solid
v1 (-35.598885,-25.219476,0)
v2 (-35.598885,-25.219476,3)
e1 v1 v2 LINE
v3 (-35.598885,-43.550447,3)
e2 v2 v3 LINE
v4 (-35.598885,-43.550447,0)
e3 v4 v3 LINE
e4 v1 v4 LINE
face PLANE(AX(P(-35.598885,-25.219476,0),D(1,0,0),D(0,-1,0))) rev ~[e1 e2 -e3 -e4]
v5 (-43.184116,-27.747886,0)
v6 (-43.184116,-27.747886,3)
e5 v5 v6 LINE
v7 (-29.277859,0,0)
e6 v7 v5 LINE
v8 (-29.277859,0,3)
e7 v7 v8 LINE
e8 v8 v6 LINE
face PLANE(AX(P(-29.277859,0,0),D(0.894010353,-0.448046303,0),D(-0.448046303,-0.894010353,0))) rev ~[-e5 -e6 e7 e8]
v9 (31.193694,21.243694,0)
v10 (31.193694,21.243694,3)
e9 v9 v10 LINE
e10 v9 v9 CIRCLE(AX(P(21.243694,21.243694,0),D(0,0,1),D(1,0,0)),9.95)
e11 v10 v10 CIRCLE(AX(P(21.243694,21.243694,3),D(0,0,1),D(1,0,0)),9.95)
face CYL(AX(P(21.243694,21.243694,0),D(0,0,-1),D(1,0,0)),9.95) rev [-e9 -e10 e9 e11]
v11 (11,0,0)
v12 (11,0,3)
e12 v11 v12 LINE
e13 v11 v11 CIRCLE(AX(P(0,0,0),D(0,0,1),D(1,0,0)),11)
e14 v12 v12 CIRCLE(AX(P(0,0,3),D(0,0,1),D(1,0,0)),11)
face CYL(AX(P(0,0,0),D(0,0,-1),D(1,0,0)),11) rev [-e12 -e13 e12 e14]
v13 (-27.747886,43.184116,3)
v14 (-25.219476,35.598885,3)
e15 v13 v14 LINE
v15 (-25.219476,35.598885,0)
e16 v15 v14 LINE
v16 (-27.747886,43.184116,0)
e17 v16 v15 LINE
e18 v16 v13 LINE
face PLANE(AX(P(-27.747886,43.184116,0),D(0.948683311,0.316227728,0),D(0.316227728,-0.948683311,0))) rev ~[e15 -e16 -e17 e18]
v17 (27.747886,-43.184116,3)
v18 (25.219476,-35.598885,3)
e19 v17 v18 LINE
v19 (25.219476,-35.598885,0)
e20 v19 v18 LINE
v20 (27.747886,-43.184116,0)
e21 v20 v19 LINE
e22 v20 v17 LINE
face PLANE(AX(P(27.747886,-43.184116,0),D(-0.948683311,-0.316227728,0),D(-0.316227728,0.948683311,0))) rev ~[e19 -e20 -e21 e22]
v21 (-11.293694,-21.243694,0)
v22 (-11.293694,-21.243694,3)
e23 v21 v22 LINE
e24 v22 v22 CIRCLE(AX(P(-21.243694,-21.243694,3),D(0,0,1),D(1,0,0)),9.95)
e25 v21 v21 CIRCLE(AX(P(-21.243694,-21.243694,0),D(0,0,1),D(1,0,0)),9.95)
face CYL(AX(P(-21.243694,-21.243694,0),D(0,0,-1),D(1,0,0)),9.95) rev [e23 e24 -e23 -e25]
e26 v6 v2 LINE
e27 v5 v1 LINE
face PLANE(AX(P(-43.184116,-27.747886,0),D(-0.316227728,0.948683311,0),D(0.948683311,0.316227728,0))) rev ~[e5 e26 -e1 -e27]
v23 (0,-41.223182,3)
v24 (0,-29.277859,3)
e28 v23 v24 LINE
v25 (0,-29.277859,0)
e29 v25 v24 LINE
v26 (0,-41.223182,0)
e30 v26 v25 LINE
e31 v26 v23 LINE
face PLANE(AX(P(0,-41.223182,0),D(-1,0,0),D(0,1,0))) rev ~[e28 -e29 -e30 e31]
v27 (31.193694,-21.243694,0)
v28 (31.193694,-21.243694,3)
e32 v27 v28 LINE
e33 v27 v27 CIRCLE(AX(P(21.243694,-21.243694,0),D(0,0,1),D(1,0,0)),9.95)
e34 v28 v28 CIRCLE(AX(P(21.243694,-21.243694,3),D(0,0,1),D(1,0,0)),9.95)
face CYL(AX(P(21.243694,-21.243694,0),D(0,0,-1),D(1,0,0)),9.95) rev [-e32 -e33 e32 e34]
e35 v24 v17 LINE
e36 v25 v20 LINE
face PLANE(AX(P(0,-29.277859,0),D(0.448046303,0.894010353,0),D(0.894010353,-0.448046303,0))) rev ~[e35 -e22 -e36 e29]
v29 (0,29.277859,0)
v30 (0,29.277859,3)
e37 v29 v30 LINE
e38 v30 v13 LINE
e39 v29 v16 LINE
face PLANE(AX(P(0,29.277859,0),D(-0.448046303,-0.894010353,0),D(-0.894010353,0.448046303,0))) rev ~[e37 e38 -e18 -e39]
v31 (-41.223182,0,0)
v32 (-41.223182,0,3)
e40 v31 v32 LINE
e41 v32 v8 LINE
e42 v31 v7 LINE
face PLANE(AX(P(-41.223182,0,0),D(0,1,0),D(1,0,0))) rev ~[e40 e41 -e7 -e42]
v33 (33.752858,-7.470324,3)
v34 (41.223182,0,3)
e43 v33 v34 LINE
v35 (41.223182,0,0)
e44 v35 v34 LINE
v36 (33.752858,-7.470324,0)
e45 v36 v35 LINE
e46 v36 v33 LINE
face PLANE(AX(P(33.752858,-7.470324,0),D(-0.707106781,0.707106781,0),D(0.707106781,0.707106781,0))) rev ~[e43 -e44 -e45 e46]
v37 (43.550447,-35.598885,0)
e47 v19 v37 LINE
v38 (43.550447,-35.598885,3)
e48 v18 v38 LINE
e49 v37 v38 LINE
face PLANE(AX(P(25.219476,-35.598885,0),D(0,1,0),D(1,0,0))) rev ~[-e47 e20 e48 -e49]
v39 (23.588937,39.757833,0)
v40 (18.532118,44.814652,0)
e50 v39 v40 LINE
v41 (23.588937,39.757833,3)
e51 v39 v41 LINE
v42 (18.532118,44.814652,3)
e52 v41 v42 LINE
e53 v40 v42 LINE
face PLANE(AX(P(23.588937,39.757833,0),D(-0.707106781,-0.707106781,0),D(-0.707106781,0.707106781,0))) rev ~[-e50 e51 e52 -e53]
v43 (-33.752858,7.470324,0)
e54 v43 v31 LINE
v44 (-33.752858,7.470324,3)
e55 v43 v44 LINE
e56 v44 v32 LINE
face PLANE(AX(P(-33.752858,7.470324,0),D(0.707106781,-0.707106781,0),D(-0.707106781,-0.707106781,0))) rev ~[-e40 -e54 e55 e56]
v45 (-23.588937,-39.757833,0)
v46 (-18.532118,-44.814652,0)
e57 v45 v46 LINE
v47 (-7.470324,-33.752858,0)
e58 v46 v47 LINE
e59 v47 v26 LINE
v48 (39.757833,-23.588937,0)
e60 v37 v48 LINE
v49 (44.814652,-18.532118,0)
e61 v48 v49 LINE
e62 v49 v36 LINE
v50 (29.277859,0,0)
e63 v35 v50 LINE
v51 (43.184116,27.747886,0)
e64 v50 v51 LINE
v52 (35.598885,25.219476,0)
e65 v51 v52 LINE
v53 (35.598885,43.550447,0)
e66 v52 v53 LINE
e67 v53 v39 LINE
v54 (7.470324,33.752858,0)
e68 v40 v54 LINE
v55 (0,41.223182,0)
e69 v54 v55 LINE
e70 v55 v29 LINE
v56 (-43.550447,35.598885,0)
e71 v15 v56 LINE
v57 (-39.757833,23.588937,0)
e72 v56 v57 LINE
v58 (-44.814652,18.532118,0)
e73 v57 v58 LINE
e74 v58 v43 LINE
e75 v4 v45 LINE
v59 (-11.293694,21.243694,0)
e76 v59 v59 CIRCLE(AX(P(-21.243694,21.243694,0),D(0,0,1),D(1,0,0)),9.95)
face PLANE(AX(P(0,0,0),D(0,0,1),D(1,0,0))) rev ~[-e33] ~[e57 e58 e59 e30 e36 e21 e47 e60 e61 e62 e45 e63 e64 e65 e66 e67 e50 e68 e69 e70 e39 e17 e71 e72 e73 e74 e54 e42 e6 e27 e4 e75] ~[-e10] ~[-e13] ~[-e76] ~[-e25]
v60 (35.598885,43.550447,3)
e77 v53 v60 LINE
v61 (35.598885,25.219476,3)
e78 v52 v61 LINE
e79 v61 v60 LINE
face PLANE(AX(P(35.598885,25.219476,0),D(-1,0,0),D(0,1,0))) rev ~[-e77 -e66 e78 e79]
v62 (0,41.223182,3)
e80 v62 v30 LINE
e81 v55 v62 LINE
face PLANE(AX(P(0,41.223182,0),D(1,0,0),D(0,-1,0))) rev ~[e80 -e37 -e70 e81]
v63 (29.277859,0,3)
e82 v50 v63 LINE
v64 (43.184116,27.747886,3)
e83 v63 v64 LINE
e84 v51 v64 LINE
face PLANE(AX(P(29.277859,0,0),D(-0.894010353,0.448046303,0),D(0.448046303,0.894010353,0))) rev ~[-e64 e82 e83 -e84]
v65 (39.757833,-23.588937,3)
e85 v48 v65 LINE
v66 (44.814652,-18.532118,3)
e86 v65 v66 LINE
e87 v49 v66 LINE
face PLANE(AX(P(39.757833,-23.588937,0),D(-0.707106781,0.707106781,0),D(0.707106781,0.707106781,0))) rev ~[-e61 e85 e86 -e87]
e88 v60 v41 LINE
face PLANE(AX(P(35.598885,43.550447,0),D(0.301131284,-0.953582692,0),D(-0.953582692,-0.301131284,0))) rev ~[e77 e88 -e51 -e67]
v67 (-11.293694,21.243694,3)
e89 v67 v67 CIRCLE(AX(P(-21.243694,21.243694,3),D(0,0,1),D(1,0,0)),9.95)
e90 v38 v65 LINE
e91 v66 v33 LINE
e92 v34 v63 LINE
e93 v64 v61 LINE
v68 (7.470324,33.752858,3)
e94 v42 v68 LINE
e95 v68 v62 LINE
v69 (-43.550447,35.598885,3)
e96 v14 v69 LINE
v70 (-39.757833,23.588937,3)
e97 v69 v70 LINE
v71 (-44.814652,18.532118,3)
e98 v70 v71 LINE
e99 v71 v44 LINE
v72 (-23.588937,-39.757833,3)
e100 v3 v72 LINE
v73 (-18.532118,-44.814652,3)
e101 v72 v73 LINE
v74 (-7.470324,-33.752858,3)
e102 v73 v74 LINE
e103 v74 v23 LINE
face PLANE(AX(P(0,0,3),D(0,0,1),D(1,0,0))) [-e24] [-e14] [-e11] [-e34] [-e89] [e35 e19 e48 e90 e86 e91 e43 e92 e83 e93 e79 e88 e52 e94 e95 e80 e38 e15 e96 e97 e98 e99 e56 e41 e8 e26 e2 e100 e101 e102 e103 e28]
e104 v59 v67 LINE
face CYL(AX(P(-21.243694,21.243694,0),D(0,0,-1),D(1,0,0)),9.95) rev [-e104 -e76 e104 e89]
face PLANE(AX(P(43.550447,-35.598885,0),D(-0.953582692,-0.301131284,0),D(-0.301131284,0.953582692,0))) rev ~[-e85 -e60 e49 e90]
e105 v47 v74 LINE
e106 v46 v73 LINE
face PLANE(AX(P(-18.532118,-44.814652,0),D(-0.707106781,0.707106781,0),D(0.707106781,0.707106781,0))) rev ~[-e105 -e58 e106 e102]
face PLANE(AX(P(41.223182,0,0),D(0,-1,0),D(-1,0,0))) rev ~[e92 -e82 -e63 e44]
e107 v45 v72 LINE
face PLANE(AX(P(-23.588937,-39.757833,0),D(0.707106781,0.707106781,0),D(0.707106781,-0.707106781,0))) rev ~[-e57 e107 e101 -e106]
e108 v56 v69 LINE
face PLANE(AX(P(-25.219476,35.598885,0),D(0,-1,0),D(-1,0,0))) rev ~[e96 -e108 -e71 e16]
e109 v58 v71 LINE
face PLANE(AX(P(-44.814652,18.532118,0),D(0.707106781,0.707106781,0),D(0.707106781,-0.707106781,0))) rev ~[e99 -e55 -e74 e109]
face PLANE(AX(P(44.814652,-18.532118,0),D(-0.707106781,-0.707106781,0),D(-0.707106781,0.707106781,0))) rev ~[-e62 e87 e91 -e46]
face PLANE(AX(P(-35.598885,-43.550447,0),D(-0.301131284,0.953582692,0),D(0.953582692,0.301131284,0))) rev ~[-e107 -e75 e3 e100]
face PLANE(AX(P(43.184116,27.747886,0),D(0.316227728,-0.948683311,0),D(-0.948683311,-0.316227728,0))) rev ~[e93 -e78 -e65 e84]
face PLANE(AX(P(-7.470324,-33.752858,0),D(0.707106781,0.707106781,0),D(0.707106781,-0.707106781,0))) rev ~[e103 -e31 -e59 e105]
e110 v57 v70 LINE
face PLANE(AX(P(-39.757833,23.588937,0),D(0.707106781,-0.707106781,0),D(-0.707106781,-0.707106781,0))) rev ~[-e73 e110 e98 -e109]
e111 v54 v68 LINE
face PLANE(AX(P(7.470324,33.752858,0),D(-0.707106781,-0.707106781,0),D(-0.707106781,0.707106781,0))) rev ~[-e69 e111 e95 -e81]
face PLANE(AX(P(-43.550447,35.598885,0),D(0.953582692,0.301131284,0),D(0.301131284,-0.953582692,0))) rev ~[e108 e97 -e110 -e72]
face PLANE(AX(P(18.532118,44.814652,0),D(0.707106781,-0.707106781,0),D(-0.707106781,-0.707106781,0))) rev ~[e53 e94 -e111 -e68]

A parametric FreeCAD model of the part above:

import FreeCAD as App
import Part
import Sketcher

V = App.Vector
Q = App.Units.Quantity

doc = App.newDocument("Part")
body = doc.addObject("PartDesign::Body", "Body")

# Sketch on XY plane
sketch1 = doc.addObject("Sketcher::SketchObject", "Sketch")
body.addObject(sketch1)
sketch1.AttachmentSupport = (doc.XY_Plane, [""])
sketch1.MapMode = "FlatFace"
sketch1.addGeometry([
    Part.LineSegment(V(0, 41.223182, 0), V(0, 29.277859, 0)),  # 0
    Part.LineSegment(V(0, 29.277859, 0), V(-27.747886, 43.184116, 0)),  # 1
    Part.LineSegment(V(-27.747886, 43.184116, 0), V(-25.219476, 35.598885, 0)),  # 2
    Part.LineSegment(V(-25.219476, 35.598885, 0), V(-43.550447, 35.598885, 0)),  # 3
    Part.LineSegment(V(-43.550447, 35.598885, 0), V(-39.757833, 23.588937, 0)),  # 4
    Part.LineSegment(V(-39.757833, 23.588937, 0), V(-44.814652, 18.532118, 0)),  # 5
    Part.LineSegment(V(-44.814652, 18.532118, 0), V(-33.752858, 7.470324, 0)),  # 6
    Part.LineSegment(V(-33.752858, 7.470324, 0), V(-41.223182, 0, 0)),  # 7
    Part.LineSegment(V(-41.223182, 0, 0), V(-29.277859, 0, 0)),  # 8
    Part.LineSegment(V(-29.277859, 0, 0), V(-43.184116, -27.747886, 0)),  # 9
    Part.LineSegment(V(-43.184116, -27.747886, 0), V(-35.598885, -25.219476, 0)),  # 10
    Part.LineSegment(V(-35.598885, -25.219476, 0), V(-35.598885, -43.550447, 0)),  # 11
    Part.LineSegment(V(-35.598885, -43.550447, 0), V(-23.588937, -39.757833, 0)),  # 12
    Part.LineSegment(V(-23.588937, -39.757833, 0), V(-18.532118, -44.814652, 0)),  # 13
    Part.LineSegment(V(-18.532118, -44.814652, 0), V(-7.470324, -33.752858, 0)),  # 14
    Part.LineSegment(V(-7.470324, -33.752858, 0), V(0, -41.223182, 0)),  # 15
    Part.LineSegment(V(0, -41.223182, 0), V(0, -29.277859, 0)),  # 16
    Part.LineSegment(V(0, -29.277859, 0), V(27.747886, -43.184116, 0)),  # 17
    Part.LineSegment(V(27.747886, -43.184116, 0), V(25.219476, -35.598885, 0)),  # 18
    Part.LineSegment(V(25.219476, -35.598885, 0), V(43.550447, -35.598885, 0)),  # 19
    Part.LineSegment(V(43.550447, -35.598885, 0), V(39.757833, -23.588937, 0)),  # 20
    Part.LineSegment(V(39.757833, -23.588937, 0), V(44.814652, -18.532118, 0)),  # 21
    Part.LineSegment(V(44.814652, -18.532118, 0), V(33.752858, -7.470324, 0)),  # 22
    Part.LineSegment(V(33.752858, -7.470324, 0), V(41.223182, 0, 0)),  # 23
    Part.LineSegment(V(41.223182, 0, 0), V(29.277859, 0, 0)),  # 24
    Part.LineSegment(V(29.277859, 0, 0), V(43.184116, 27.747886, 0)),  # 25
    Part.LineSegment(V(43.184116, 27.747886, 0), V(35.598885, 25.219476, 0)),  # 26
    Part.LineSegment(V(35.598885, 25.219476, 0), V(35.598885, 43.550447, 0)),  # 27
    Part.LineSegment(V(35.598885, 43.550447, 0), V(23.588937, 39.757833, 0)),  # 28
    Part.LineSegment(V(23.588937, 39.757833, 0), V(18.532118, 44.814652, 0)),  # 29
    Part.LineSegment(V(18.532118, 44.814652, 0), V(7.470324, 33.752858, 0)),  # 30
    Part.LineSegment(V(7.470324, 33.752858, 0), V(0, 41.223182, 0)),  # 31
    Part.Circle(V(-21.243694, -21.243694, 0), V(0, 0, 1), 9.95),  # 32
    Part.Circle(V(21.243694, -21.243694, 0), V(0, 0, 1), 9.95),  # 33
    Part.Circle(V(-21.243694, 21.243694, 0), V(0, 0, 1), 9.95),  # 34
    Part.Circle(V(0, 0, 0), V(0, 0, 1), 11),  # 35
    Part.Circle(V(21.243694, 21.243694, 0), V(0, 0, 1), 9.95),  # 36
], False)
sketch1.addConstraint([
    Sketcher.Constraint("Coincident", 0, 2, 1, 1),
    Sketcher.Constraint("Coincident", 1, 2, 2, 1),
    Sketcher.Constraint("Coincident", 2, 2, 3, 1),
    Sketcher.Constraint("Coincident", 3, 2, 4, 1),
    Sketcher.Constraint("Coincident", 4, 2, 5, 1),
    Sketcher.Constraint("Coincident", 5, 2, 6, 1),
    Sketcher.Constraint("Coincident", 6, 2, 7, 1),
    Sketcher.Constraint("Coincident", 7, 2, 8, 1),
    Sketcher.Constraint("Coincident", 8, 2, 9, 1),
    Sketcher.Constraint("Coincident", 9, 2, 10, 1),
    Sketcher.Constraint("Coincident", 10, 2, 11, 1),
    Sketcher.Constraint("Coincident", 11, 2, 12, 1),
    Sketcher.Constraint("Coincident", 12, 2, 13, 1),
    Sketcher.Constraint("Coincident", 13, 2, 14, 1),
    Sketcher.Constraint("Coincident", 14, 2, 15, 1),
    Sketcher.Constraint("Coincident", 15, 2, 16, 1),
    Sketcher.Constraint("Coincident", 16, 2, 17, 1),
    Sketcher.Constraint("Coincident", 17, 2, 18, 1),
    Sketcher.Constraint("Coincident", 18, 2, 19, 1),
    Sketcher.Constraint("Coincident", 19, 2, 20, 1),
    Sketcher.Constraint("Coincident", 20, 2, 21, 1),
    Sketcher.Constraint("Coincident", 21, 2, 22, 1),
    Sketcher.Constraint("Coincident", 22, 2, 23, 1),
    Sketcher.Constraint("Coincident", 23, 2, 24, 1),
    Sketcher.Constraint("Coincident", 24, 2, 25, 1),
    Sketcher.Constraint("Coincident", 25, 2, 26, 1),
    Sketcher.Constraint("Coincident", 26, 2, 27, 1),
    Sketcher.Constraint("Coincident", 27, 2, 28, 1),
    Sketcher.Constraint("Coincident", 28, 2, 29, 1),
    Sketcher.Constraint("Coincident", 29, 2, 30, 1),
    Sketcher.Constraint("Coincident", 30, 2, 31, 1),
    Sketcher.Constraint("Coincident", 31, 2, 0, 1),
    Sketcher.Constraint("Vertical", 0),
    Sketcher.Constraint("Horizontal", 3),
    Sketcher.Constraint("Horizontal", 8),
    Sketcher.Constraint("Vertical", 11),
    Sketcher.Constraint("Vertical", 16),
    Sketcher.Constraint("Horizontal", 19),
    Sketcher.Constraint("Horizontal", 24),
    Sketcher.Constraint("Vertical", 27),
    Sketcher.Constraint("Coincident", 35, 3, -1, 1),
    Sketcher.Constraint("Equal", 32, 33),
    Sketcher.Constraint("Equal", 33, 34),
    Sketcher.Constraint("Equal", 34, 36),
    Sketcher.Constraint("Symmetric", 33, 3, 34, 3, -1, 1),
    Sketcher.Constraint("Symmetric", 32, 3, 36, 3, -1, 1),
    Sketcher.Constraint("Symmetric", 0, 2, 16, 2, -1, 1),
    Sketcher.Constraint("Symmetric", 1, 2, 17, 2, -1, 1),
    Sketcher.Constraint("Symmetric", 2, 2, 18, 2, -1, 1),
    Sketcher.Constraint("Symmetric", 4, 2, 20, 2, -1, 1),
    Sketcher.Constraint("Symmetric", 5, 2, 21, 2, -1, 1),
    Sketcher.Constraint("Symmetric", 6, 2, 22, 2, -1, 1),
    Sketcher.Constraint("Symmetric", 7, 2, 23, 2, -1, 1),
    Sketcher.Constraint("Symmetric", 9, 2, 25, 2, -1, 1),
    Sketcher.Constraint("Symmetric", 10, 2, 26, 2, -1, 1),
    Sketcher.Constraint("Symmetric", 12, 2, 28, 2, -1, 1),
    Sketcher.Constraint("Symmetric", 13, 2, 29, 2, -1, 1),
    Sketcher.Constraint("Symmetric", 14, 2, 30, 2, -1, 1),
    Sketcher.Constraint("Symmetric", 32, 3, 33, 3, -2),
    Sketcher.Constraint("Symmetric", 8, 2, 24, 2, -2),
    Sketcher.Constraint("Symmetric", 15, 2, 31, 2, -1),
    Sketcher.Constraint("Perpendicular", 5, 6),
    Sketcher.Constraint("Perpendicular", 6, 7),
    Sketcher.Constraint("Perpendicular", 1, 9),
    Sketcher.Constraint("Perpendicular", 2, 10),
    Sketcher.Constraint("Perpendicular", 4, 12),
    Sketcher.Constraint("Perpendicular", 7, 13),
    Sketcher.Constraint("Perpendicular", 13, 14),
    Sketcher.Constraint("Perpendicular", 14, 15),
    Sketcher.Constraint("Perpendicular", 12, 20),
    Sketcher.Constraint("Perpendicular", 20, 28),
    Sketcher.Constraint("Equal", 24, 0),
    Sketcher.Constraint("Equal", 19, 11),
    Sketcher.Constraint("Equal", 1, 9),
    Sketcher.Constraint("Equal", 2, 10),
    Sketcher.Constraint("Equal", 4, 12),
    Sketcher.Constraint("Equal", 5, 13),
    Sketcher.Constraint("Equal", 6, 14),
    Sketcher.Constraint("Diameter", 35, Q("22 mm")),
    Sketcher.Constraint("Diameter", 32, Q("19.9 mm")),
    Sketcher.Constraint("Angle", 5, Q("-135 deg")),
    Sketcher.Constraint("DistanceY", 5, 2, 1, 2, Q("24.651998 mm")),
    Sketcher.Constraint("DistanceX", 6, 2, 8, 2, Q("4.474999 mm")),
    Sketcher.Constraint("DistanceX", 3, 2, 3, 1, Q("18.330971 mm")),
    Sketcher.Constraint("DistanceY", 10, 2, 6, 2, Q("32.6898 mm")),
    Sketcher.Constraint("Distance", 6, Q("15.643739 mm")),
    Sketcher.Constraint("DistanceX", 8, 1, 8, 2, Q("11.945323 mm")),
    Sketcher.Constraint("DistanceY", -1, 1, 0, 2, Q("29.277859 mm")),
    Sketcher.Constraint("DistanceX", 32, 3, 33, 3, Q("42.487388 mm")),
    Sketcher.Constraint("DistanceY", 32, 3, 34, 3, Q("42.487388 mm")),
    Sketcher.Constraint("DistanceX", 1, 2, 34, 3, Q("6.504192 mm")),
    Sketcher.Constraint("DistanceY", 2, 2, 1, 2, Q("7.585231 mm")),
    Sketcher.Constraint("DistanceY", 4, 2, 3, 2, Q("12.009948 mm")),
])
pad1 = doc.addObject("PartDesign::Pad", "Pad")
body.addObject(pad1)
pad1.Profile = sketch1
pad1.Length = 3

doc.recompute()
